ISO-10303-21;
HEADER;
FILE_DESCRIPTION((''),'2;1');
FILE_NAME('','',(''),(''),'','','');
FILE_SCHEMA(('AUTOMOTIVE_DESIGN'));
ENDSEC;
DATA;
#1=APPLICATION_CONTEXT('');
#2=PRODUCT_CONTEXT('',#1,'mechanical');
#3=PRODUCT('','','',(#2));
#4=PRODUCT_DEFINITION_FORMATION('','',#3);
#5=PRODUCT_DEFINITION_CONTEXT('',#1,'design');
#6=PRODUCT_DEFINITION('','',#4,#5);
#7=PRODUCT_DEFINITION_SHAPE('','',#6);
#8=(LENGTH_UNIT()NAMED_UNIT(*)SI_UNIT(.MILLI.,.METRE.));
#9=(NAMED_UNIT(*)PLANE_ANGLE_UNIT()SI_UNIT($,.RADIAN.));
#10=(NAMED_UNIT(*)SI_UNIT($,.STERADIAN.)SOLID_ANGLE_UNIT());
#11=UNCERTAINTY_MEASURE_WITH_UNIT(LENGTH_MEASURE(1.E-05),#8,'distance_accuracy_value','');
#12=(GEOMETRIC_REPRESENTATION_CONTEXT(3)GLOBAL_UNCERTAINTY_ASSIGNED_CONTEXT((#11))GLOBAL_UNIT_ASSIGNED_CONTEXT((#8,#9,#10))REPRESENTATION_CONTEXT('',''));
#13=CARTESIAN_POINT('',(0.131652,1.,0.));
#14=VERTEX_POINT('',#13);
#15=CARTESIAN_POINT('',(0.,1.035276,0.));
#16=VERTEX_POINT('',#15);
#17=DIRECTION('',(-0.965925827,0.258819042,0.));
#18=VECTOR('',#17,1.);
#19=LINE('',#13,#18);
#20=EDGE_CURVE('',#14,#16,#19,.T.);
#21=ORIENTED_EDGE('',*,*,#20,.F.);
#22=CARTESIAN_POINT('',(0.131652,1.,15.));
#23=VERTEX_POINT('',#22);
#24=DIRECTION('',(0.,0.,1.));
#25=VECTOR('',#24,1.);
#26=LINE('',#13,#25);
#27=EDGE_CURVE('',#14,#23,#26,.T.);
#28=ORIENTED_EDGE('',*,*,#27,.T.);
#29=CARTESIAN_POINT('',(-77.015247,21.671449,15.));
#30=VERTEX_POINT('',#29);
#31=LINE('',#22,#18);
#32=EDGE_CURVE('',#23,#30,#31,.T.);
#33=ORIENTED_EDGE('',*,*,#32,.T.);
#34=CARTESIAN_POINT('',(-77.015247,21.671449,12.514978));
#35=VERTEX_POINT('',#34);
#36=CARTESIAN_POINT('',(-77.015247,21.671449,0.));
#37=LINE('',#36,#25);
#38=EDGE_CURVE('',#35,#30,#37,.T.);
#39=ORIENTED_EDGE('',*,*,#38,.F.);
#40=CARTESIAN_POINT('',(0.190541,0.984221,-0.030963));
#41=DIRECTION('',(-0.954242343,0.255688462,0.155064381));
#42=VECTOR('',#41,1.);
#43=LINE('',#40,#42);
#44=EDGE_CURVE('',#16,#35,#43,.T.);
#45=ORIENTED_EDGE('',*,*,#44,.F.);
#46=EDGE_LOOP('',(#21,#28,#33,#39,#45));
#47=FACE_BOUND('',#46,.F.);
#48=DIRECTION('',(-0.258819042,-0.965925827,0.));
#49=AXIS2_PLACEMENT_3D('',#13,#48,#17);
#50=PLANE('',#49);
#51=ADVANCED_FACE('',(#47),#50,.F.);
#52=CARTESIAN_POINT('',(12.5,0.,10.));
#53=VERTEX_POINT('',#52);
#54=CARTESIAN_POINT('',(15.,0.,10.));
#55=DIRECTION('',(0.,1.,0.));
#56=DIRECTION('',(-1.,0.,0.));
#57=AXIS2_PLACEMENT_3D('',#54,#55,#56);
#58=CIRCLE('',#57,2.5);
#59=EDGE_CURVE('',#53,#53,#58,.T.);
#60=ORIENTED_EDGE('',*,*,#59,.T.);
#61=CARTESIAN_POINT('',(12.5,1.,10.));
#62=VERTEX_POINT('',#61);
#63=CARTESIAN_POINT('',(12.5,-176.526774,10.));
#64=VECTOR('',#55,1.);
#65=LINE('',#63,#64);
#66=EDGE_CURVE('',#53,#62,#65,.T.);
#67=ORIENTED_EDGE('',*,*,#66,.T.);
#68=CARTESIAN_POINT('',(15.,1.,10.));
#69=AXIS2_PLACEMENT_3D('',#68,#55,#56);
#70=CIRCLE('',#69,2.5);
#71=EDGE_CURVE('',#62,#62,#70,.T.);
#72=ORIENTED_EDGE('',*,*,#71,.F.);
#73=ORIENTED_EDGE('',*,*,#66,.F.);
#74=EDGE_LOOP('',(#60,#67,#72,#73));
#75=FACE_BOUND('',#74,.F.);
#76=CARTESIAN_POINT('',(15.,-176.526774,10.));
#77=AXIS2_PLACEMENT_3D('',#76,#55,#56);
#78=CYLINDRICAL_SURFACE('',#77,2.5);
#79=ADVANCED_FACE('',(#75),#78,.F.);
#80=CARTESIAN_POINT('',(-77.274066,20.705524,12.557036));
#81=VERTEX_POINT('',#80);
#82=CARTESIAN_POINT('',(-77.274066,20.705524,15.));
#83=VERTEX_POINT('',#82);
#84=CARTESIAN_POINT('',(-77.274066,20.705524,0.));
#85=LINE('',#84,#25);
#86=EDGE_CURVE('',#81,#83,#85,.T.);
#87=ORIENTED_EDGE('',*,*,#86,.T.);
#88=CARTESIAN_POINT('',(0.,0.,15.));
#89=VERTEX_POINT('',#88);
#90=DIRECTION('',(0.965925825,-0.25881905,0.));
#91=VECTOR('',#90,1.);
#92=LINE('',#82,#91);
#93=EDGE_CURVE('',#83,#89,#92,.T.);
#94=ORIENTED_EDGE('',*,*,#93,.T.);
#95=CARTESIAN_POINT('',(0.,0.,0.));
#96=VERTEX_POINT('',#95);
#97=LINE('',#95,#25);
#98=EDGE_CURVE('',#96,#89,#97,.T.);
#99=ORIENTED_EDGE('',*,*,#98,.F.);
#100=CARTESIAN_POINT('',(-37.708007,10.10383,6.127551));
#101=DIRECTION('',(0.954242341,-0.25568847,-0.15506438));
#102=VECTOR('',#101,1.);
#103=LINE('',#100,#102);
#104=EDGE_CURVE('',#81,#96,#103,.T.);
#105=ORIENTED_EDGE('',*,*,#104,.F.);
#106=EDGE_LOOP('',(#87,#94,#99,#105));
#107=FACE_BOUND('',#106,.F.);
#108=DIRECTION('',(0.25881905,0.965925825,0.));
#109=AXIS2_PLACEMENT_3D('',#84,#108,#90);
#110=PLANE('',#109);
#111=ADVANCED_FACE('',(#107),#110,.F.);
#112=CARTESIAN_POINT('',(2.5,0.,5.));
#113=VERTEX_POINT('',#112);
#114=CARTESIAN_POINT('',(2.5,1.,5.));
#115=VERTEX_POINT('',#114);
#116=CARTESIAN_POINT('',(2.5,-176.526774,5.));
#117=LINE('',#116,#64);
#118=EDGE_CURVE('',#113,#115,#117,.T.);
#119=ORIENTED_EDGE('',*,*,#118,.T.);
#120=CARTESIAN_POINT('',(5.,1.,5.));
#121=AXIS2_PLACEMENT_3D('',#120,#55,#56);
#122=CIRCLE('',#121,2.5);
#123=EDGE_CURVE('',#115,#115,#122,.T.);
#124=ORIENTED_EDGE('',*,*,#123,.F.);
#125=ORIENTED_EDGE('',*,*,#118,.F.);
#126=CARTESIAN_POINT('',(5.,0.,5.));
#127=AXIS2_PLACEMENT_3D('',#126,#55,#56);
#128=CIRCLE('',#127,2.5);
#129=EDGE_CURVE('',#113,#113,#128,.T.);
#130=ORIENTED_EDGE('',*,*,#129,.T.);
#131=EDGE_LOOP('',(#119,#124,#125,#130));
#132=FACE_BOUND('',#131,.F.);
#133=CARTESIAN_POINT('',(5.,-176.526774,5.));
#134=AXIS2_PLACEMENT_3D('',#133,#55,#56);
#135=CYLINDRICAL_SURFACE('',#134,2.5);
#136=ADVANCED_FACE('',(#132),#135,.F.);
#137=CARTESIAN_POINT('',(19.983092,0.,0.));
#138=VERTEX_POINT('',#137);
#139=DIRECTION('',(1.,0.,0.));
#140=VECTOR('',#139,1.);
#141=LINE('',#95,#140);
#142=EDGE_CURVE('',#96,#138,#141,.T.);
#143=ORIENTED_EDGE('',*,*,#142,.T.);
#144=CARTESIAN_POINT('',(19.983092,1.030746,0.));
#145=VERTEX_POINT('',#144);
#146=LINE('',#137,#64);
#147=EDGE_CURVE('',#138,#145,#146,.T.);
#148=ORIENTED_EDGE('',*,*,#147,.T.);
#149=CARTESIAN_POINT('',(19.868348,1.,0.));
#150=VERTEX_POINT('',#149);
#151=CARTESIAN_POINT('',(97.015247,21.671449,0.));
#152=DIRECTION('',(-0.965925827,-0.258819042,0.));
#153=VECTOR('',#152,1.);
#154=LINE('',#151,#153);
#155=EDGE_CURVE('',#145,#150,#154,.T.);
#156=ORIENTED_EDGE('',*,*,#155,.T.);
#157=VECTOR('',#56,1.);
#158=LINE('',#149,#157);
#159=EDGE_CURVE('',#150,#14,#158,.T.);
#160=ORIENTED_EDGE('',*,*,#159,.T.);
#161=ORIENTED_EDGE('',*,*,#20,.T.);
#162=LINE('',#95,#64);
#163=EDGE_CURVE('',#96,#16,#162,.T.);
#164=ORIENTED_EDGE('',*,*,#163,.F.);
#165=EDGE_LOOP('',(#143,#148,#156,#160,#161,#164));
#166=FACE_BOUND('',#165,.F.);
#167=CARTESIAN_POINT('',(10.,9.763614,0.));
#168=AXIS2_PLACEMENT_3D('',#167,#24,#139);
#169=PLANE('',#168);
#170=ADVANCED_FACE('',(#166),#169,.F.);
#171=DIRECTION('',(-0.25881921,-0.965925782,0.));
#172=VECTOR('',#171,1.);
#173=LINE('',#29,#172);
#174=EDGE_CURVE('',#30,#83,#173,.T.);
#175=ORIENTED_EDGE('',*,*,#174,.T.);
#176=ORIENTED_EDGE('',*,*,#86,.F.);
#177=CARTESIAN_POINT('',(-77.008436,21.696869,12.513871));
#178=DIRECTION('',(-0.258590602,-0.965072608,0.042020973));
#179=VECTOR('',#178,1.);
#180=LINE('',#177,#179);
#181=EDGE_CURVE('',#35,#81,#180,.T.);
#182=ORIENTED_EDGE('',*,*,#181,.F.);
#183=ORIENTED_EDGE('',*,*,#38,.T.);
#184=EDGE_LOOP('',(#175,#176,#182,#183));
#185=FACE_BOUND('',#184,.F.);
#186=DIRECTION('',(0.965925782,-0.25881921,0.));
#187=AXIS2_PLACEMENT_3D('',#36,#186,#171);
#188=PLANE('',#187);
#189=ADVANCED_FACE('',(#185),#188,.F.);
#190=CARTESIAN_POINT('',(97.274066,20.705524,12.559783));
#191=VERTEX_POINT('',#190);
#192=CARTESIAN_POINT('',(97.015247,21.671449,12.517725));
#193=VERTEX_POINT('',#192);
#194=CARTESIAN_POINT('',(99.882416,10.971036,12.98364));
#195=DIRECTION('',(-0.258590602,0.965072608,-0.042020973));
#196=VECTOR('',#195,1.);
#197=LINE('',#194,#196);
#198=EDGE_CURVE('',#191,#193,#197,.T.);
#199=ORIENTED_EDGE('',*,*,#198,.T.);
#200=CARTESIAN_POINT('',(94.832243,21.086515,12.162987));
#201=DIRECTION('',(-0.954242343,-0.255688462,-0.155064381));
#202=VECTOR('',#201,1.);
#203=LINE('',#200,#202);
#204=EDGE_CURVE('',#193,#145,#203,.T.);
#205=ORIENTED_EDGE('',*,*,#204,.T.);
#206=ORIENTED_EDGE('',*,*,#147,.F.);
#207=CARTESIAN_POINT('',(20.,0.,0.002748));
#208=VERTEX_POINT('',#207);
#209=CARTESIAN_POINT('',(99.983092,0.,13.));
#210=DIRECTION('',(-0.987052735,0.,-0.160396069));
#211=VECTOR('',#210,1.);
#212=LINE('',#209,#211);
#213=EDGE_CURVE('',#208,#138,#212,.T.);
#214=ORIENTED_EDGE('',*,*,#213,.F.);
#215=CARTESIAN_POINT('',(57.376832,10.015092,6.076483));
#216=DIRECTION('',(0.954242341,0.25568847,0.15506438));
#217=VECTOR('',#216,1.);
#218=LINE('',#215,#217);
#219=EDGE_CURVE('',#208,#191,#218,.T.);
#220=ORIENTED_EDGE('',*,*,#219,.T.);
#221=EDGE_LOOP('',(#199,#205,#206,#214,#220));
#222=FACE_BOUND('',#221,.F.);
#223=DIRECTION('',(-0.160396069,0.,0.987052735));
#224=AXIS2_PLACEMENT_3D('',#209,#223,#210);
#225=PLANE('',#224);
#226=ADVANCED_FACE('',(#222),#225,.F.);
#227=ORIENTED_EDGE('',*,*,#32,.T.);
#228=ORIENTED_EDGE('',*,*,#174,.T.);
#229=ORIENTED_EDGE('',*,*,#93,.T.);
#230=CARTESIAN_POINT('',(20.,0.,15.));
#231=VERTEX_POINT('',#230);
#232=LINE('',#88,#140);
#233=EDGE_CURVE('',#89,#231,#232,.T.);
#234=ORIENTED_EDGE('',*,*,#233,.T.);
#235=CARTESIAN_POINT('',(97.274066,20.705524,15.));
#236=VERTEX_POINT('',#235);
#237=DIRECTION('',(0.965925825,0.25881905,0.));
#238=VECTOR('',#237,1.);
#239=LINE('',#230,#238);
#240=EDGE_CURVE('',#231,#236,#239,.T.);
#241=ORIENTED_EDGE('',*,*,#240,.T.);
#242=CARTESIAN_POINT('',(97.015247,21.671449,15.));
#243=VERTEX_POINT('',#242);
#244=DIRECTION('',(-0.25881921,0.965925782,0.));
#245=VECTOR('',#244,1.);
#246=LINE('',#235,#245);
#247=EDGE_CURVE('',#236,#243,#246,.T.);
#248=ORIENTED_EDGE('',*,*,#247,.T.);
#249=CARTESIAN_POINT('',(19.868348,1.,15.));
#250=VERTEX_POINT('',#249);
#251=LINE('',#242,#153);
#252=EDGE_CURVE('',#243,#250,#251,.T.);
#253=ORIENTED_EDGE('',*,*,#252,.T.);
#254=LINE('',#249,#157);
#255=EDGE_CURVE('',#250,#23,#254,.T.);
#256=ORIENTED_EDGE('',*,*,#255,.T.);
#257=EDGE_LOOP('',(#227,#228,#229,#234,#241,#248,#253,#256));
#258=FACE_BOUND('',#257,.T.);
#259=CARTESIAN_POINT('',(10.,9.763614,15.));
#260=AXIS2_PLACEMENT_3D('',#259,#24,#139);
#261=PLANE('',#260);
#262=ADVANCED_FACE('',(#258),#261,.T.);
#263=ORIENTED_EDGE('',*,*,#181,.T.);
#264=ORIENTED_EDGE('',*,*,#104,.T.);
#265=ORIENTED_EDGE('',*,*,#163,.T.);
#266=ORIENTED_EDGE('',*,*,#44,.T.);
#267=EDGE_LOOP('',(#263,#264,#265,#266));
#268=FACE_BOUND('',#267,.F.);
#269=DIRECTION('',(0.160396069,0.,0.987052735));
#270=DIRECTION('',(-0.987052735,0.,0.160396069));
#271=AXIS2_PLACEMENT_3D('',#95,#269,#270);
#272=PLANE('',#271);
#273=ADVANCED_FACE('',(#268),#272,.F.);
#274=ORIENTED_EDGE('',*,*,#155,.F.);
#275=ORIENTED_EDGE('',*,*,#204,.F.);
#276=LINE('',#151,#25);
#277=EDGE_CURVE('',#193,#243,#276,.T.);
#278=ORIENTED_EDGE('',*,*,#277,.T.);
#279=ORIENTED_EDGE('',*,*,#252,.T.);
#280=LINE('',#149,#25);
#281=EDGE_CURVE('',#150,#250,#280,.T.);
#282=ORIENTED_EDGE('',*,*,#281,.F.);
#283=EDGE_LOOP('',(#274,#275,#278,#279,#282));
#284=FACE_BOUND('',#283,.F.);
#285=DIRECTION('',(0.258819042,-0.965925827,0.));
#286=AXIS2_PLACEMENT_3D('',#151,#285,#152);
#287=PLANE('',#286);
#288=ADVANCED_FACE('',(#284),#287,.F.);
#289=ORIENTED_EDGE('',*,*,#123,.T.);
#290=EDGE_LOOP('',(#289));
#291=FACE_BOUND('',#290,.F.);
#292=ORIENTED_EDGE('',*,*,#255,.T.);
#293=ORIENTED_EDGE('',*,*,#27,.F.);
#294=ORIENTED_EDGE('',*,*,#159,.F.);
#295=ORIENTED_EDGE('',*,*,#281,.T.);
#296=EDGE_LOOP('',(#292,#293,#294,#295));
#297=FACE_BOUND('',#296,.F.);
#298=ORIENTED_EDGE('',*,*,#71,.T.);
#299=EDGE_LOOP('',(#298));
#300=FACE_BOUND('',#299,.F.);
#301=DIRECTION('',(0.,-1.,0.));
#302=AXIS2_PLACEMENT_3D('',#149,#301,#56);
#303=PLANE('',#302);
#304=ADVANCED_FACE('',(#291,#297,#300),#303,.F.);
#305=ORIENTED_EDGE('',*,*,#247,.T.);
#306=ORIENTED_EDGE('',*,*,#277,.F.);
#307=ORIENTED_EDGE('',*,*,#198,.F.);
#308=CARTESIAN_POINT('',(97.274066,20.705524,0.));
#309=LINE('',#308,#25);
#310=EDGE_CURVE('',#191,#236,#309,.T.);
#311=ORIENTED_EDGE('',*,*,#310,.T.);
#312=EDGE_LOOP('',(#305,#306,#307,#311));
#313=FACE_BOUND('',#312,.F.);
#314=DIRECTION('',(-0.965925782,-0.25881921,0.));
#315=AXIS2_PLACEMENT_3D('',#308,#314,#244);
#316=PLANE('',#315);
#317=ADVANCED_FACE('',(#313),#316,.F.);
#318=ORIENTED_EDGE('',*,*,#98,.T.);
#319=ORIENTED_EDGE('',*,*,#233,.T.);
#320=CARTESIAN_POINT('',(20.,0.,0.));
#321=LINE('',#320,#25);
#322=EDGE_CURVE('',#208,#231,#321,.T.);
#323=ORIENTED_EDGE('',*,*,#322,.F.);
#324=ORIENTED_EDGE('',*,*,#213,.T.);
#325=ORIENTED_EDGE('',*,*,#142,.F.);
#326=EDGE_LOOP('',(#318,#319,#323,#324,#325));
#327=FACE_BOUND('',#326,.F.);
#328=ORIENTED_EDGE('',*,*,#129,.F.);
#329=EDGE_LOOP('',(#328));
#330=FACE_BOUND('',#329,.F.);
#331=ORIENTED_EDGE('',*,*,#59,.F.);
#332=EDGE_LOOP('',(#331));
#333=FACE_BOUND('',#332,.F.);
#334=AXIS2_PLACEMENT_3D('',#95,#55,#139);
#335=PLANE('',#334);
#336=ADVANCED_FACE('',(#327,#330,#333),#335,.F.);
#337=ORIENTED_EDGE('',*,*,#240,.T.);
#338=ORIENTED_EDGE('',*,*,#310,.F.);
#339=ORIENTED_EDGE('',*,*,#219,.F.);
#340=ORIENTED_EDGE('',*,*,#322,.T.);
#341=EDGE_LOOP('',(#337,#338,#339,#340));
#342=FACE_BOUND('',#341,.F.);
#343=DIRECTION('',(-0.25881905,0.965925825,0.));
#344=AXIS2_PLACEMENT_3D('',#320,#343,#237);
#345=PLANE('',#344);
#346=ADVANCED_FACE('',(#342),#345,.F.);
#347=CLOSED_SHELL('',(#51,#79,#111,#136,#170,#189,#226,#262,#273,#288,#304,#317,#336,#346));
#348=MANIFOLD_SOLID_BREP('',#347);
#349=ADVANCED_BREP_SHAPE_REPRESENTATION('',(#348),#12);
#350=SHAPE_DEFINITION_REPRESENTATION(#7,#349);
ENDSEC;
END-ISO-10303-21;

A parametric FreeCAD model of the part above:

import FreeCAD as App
import Part
import Sketcher
from FreeCAD import Vector
Q = App.Units.Quantity


def add_polygon(sketch, points):
    """Adds a closed chain of lines whose ends are joined by coincident constraints."""
    first, n = sketch.GeometryCount, len(points)
    for a, b in zip(points, points[1:] + points[:1]):
        sketch.addGeometry(Part.LineSegment(App.Vector(*a, 0), App.Vector(*b, 0)), False)
    for i in range(n):
        sketch.addConstraint(Sketcher.Constraint("Coincident", first + i, 2, first + (i + 1) % n, 1))

doc = App.newDocument("Part")
body = doc.addObject("PartDesign::Body", "Body")

# Sketch on XY plane
sketch1 = body.newObject("Sketcher::SketchObject", "Sketch")
sketch1.AttachmentSupport = (doc.getObject("XY_Plane"), [""])
sketch1.MapMode = "FlatFace"
add_polygon(sketch1, [(-77.3, 20.7), (0, 0), (20, 0), (97.3, 20.7), (97, 21.7), (19.9, 1), (0.1, 1), (-77, 21.7)])  # lines 0-7
sketch1.addConstraint(Sketcher.Constraint("Horizontal", 1))
sketch1.addConstraint(Sketcher.Constraint("Horizontal", 5))
sketch1.addConstraint(Sketcher.Constraint("Coincident", 0, 2, -1, 1))
sketch1.addConstraint(Sketcher.Constraint("Perpendicular", 2, 3))
sketch1.addConstraint(Sketcher.Constraint("Perpendicular", 3, 4))
sketch1.addConstraint(Sketcher.Constraint("Parallel", 0, 6))
sketch1.addConstraint(Sketcher.Constraint("Perpendicular", 6, 7))
sketch1.addConstraint(Sketcher.Constraint("Horizontal", 3, 2, 6, 2))
sketch1.addConstraint(Sketcher.Constraint("Horizontal", 2, 2, 7, 2))
sketch1.addConstraint(Sketcher.Constraint("Equal", 0, 2))
sketch1.addConstraint(Sketcher.Constraint("DistanceX", 1, 1, 1, 2, 20.0))
sketch1.addConstraint(Sketcher.Constraint("Angle", 0, Q("-15 deg")))
sketch1.addConstraint(Sketcher.Constraint("Distance", 0, 80.0))
sketch1.addConstraint(Sketcher.Constraint("Distance", 3, 0.999999))
sketch1.addConstraint(Sketcher.Constraint("DistanceY", -1, 1, 4, 2, 1.0))
pad1 = body.newObject("PartDesign::Pad", "Pad")
pad1.Profile = sketch1
pad1.Length = 15

# Sketch on XZ plane
sketch2 = body.newObject("Sketcher::SketchObject", "Sketch001")
sketch2.AttachmentSupport = (doc.getObject("XZ_Plane"), [""])
sketch2.MapMode = "FlatFace"
add_polygon(sketch2, [(-80, 0), (0, 0), (-80, 13)])  # lines 0-2
add_polygon(sketch2, [(100, 13), (20, 0), (100, 0)])  # lines 3-5
sketch2.addConstraint(Sketcher.Constraint("Horizontal", 0))
sketch2.addConstraint(Sketcher.Constraint("Vertical", 2))
sketch2.addConstraint(Sketcher.Constraint("Horizontal", 4))
sketch2.addConstraint(Sketcher.Constraint("Vertical", 5))
sketch2.addConstraint(Sketcher.Constraint("Coincident", 0, 2, -1, 1))
sketch2.addConstraint(Sketcher.Constraint("PointOnObject", 3, 2, -1))
sketch2.addConstraint(Sketcher.Constraint("Horizontal", 1, 2, 5, 2))
sketch2.addConstraint(Sketcher.Constraint("Equal", 0, 4))
sketch2.addConstraint(Sketcher.Constraint("DistanceX", 0, 1, 0, 2, 80.0))
sketch2.addConstraint(Sketcher.Constraint("DistanceY", 2, 2, 2, 1, 13.0))
sketch2.addConstraint(Sketcher.Constraint("DistanceX", -1, 1, 3, 2, 19.983092))
pocket1 = body.newObject("PartDesign::Pocket", "Pocket")
pocket1.Profile = sketch2
pocket1.Type = "ThroughAll"

# Sketch on XZ plane
sketch3 = body.newObject("Sketcher::SketchObject", "Sketch002")
sketch3.AttachmentSupport = (doc.getObject("XZ_Plane"), [""])
sketch3.MapMode = "FlatFace"
sketch3.addGeometry(Part.Circle(Vector(5, 5, 0), Vector(0, 0, 1), 2.5), False)
sketch3.addGeometry(Part.Circle(Vector(15, 10, 0), Vector(0, 0, 1), 2.5), False)
sketch3.addConstraint(Sketcher.Constraint("Equal", 0, 1))
sketch3.addConstraint(Sketcher.Constraint("Diameter", 0, 5.0))
sketch3.addConstraint(Sketcher.Constraint("DistanceX", -1, 1, 0, 3, 5.0))
sketch3.addConstraint(Sketcher.Constraint("DistanceY", -1, 1, 0, 3, 5.0))
sketch3.addConstraint(Sketcher.Constraint("DistanceX", -1, 1, 1, 3, 15.0))
sketch3.addConstraint(Sketcher.Constraint("DistanceY", -1, 1, 1, 3, 10.0))
doc.recompute()
hole = body.newObject("PartDesign::Hole", "Hole")
hole.Profile = sketch3
hole.ThreadType = "None"
hole.Diameter = 5
hole.DepthType = "ThroughAll"

doc.recompute()
